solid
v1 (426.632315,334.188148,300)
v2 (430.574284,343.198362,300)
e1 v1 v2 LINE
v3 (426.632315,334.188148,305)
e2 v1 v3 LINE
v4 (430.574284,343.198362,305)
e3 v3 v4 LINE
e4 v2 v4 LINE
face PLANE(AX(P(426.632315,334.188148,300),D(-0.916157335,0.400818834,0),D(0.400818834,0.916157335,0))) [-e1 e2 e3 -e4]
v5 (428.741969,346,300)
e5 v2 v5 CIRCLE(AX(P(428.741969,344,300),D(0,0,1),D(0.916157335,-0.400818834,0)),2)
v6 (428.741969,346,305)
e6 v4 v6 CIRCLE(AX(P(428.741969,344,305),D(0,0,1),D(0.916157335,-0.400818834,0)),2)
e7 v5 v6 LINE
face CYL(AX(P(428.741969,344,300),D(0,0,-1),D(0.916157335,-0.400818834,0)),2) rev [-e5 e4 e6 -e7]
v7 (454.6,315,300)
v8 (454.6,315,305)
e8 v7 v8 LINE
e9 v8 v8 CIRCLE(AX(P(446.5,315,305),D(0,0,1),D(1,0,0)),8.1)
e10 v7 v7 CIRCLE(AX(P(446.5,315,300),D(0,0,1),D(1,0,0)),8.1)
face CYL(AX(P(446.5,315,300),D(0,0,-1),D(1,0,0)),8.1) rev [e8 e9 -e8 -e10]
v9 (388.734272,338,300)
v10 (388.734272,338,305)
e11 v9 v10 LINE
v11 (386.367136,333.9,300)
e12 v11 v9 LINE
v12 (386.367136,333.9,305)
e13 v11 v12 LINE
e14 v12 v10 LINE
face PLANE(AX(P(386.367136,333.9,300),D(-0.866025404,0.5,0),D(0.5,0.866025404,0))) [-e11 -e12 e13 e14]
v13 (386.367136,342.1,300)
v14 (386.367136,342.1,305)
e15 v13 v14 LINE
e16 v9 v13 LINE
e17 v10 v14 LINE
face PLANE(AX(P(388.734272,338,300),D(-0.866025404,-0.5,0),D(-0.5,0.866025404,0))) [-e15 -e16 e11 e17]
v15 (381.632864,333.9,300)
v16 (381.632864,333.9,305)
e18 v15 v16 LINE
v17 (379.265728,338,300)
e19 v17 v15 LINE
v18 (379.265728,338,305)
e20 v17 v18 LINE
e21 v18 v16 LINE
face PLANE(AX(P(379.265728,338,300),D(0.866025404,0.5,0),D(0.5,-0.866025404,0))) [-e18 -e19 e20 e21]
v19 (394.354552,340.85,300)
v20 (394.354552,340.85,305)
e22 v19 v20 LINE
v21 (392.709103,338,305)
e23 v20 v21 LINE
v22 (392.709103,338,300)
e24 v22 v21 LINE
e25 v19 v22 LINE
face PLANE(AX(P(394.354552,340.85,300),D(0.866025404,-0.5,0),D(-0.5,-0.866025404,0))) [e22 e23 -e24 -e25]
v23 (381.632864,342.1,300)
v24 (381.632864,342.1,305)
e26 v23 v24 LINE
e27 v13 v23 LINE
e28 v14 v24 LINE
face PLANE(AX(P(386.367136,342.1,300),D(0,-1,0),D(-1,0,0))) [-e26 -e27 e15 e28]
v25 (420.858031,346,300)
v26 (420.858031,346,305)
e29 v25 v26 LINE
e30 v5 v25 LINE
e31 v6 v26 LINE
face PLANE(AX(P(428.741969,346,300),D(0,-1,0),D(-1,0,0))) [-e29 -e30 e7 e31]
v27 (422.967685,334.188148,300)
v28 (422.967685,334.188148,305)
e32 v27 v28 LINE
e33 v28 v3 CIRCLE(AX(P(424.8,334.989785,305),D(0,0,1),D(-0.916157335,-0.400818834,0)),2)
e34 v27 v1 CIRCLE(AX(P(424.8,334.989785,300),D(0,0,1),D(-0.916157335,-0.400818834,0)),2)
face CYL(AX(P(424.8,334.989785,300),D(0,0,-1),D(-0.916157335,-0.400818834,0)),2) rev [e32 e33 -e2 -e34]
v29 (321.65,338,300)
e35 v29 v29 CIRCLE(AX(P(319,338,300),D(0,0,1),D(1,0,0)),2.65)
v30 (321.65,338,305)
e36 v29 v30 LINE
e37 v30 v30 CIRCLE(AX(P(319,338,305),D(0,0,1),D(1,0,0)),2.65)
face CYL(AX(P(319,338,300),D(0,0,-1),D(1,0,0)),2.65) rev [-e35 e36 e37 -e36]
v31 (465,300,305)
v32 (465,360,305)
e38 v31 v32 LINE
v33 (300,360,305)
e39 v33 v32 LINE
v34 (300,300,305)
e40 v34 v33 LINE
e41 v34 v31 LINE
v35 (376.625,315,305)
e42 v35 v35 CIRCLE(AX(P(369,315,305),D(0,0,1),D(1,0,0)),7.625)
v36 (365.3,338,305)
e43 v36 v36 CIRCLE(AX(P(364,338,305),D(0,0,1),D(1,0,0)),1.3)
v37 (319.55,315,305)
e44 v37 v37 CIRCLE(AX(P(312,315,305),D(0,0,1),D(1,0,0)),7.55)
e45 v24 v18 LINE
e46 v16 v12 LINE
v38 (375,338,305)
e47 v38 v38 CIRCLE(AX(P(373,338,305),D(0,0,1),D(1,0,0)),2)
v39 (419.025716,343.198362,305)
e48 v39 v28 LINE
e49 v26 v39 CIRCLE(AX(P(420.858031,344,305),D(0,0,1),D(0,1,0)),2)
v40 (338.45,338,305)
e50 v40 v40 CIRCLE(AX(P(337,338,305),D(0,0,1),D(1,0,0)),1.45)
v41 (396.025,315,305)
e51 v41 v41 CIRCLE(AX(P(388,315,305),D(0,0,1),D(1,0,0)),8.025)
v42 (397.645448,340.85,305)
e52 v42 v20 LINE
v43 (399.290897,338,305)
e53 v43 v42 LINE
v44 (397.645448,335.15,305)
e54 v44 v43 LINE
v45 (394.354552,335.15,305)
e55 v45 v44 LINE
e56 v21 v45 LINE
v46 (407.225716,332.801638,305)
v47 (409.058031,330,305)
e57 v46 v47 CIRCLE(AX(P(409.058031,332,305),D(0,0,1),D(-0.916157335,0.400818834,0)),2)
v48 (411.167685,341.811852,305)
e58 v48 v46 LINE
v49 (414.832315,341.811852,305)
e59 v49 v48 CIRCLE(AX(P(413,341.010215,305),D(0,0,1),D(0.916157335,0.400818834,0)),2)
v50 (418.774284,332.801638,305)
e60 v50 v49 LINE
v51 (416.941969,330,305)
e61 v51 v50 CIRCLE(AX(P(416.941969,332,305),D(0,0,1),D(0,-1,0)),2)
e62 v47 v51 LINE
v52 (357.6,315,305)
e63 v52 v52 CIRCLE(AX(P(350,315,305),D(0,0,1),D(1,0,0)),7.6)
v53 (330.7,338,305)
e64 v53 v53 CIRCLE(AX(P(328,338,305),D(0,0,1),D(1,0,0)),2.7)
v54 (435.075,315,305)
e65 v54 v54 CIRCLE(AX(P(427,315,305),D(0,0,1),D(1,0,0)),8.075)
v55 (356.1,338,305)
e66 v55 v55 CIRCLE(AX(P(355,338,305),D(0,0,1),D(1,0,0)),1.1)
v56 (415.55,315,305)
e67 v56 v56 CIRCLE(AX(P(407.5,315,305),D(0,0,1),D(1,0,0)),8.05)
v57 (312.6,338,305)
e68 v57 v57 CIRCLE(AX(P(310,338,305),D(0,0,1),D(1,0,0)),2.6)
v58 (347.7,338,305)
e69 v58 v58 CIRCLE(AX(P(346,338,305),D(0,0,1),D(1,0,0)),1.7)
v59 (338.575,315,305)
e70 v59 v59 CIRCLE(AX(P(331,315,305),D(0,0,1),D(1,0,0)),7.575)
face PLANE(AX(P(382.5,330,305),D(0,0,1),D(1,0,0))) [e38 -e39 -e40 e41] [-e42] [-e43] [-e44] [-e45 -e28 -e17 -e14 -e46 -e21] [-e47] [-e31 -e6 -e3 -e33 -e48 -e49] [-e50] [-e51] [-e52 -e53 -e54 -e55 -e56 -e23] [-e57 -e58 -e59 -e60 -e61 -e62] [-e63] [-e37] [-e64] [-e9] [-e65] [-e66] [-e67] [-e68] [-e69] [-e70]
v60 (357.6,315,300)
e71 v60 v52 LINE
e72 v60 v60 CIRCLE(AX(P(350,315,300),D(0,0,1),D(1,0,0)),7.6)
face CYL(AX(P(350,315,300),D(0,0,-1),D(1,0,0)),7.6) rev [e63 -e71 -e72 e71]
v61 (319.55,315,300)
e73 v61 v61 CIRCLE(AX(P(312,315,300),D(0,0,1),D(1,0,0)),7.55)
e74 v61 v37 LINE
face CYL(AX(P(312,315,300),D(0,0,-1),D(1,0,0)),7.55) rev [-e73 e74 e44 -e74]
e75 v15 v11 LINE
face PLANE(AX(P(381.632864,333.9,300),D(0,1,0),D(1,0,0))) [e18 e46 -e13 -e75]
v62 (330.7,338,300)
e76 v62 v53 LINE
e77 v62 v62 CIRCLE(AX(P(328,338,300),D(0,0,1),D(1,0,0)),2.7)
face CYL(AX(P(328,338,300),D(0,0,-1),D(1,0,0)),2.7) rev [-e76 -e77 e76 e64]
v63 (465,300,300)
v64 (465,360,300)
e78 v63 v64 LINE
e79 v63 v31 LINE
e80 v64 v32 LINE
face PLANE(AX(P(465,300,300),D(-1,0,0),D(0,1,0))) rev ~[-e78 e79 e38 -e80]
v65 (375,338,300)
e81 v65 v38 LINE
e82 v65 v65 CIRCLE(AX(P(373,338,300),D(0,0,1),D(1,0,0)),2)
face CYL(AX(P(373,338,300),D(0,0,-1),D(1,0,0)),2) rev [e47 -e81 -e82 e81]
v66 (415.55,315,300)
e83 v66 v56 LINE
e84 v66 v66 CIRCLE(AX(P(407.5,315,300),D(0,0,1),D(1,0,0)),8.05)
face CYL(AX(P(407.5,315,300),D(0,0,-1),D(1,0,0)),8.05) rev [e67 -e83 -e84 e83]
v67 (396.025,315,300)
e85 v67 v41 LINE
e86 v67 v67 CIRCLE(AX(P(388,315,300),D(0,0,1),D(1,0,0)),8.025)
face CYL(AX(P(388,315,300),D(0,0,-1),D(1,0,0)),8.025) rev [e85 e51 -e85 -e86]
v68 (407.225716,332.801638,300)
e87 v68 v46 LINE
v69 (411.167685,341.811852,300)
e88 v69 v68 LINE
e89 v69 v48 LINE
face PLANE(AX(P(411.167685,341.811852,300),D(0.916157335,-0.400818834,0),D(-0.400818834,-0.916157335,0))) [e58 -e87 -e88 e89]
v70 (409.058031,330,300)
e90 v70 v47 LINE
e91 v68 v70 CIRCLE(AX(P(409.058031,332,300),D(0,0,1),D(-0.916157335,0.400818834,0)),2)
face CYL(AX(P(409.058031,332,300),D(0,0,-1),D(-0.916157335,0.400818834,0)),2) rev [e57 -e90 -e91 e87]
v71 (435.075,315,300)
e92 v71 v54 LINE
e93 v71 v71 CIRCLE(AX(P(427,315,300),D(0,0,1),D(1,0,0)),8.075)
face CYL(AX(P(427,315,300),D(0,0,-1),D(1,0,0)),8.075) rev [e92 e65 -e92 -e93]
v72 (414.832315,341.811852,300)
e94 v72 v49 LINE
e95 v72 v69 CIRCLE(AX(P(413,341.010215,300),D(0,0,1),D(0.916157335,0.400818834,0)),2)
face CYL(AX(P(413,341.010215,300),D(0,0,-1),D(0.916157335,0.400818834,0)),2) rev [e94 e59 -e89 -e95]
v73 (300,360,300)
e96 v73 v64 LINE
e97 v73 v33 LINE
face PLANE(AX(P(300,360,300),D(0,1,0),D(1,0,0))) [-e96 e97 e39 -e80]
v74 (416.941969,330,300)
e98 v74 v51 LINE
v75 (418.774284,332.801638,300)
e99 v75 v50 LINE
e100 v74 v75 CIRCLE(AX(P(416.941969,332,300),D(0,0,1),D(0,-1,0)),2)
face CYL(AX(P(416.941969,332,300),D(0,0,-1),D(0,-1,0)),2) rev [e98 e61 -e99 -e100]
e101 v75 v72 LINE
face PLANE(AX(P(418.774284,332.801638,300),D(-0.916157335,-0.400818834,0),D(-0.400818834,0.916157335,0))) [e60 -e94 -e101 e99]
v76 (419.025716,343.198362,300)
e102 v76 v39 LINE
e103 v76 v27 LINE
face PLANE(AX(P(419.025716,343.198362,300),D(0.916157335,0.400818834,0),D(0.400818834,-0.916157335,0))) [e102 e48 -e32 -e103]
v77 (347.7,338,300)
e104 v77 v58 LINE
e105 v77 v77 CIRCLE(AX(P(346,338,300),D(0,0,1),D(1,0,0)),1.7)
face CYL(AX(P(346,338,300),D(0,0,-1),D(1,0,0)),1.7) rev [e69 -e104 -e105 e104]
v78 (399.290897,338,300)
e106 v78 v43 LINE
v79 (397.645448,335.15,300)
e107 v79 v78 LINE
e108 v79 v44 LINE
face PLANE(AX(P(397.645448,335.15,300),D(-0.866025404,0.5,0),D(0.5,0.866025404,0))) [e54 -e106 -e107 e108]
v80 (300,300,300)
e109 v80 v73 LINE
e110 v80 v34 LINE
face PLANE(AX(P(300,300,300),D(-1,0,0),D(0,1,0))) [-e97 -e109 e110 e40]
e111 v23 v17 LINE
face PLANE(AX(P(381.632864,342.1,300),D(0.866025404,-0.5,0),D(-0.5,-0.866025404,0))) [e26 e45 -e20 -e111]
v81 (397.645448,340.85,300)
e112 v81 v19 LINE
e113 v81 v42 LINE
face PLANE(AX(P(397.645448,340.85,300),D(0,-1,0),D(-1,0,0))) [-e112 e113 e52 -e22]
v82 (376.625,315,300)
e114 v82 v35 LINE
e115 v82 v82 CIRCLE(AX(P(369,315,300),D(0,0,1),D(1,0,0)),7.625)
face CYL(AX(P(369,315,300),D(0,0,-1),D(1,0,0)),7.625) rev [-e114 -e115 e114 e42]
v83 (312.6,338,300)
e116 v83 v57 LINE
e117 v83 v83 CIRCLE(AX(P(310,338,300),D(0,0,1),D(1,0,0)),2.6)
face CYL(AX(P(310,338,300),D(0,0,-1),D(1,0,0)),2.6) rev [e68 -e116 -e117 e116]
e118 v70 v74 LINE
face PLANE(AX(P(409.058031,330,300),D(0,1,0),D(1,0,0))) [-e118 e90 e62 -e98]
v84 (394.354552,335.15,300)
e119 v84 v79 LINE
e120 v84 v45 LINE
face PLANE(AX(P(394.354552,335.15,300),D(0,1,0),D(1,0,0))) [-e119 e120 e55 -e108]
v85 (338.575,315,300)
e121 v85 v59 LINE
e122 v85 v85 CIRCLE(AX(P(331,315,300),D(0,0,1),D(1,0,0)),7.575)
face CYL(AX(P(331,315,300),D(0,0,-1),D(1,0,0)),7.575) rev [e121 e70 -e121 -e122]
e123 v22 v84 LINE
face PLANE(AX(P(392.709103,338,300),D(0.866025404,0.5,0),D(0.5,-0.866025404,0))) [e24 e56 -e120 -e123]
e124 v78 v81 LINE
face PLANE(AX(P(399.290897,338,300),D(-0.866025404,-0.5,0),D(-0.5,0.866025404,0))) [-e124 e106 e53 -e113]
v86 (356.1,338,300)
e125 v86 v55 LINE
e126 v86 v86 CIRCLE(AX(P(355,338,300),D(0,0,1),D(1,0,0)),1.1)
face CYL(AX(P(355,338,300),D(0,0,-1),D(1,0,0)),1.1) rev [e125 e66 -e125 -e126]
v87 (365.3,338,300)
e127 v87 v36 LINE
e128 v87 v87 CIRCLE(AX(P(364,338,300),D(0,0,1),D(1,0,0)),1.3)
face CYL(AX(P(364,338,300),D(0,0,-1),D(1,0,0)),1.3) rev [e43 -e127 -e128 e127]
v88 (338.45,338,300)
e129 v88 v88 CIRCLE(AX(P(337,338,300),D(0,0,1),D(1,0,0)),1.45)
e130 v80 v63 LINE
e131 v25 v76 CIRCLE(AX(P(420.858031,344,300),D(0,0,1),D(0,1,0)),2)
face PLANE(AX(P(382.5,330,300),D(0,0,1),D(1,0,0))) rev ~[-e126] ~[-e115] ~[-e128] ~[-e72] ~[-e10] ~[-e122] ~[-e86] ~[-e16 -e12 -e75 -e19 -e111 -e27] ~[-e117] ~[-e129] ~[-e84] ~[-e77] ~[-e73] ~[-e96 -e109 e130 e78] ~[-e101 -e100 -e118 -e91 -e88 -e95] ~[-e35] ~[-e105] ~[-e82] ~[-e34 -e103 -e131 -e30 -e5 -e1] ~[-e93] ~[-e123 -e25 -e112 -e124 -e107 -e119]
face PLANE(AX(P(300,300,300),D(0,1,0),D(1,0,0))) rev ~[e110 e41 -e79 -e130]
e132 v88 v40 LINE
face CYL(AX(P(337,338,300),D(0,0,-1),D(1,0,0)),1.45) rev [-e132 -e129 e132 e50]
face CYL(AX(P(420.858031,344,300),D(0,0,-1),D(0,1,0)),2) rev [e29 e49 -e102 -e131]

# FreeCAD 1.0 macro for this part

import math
import FreeCAD as App
import Part
import Sketcher
Q = App.Units.Quantity


def add_polygon(sketch, points):
    """Adds a closed chain of lines whose ends are joined by coincident constraints."""
    first, n = sketch.GeometryCount, len(points)
    for a, b in zip(points, points[1:] + points[:1]):
        sketch.addGeometry(Part.LineSegment(App.Vector(*a, 0), App.Vector(*b, 0)), False)
    for i in range(n):
        sketch.addConstraint(Sketcher.Constraint("Coincident", first + i, 2, first + (i + 1) % n, 1))

doc = App.newDocument("Part")
body = doc.addObject("PartDesign::Body", "Body")

# Sketch on XY plane
sketch1 = body.newObject("Sketcher::SketchObject", "Sketch")
sketch1.AttachmentSupport = (doc.getObject("XY_Plane"), [""])
sketch1.MapMode = "FlatFace"
sketch1.AttachmentOffset = App.Placement(App.Vector(0, 0, 300), App.Rotation())
add_polygon(sketch1, [(300, 360), (300, 300), (465, 300), (465, 360)])  # lines 0-3
sketch1.addGeometry(Part.Circle(App.Vector(312, 315, 0), App.Vector(0, 0, 1), 7.5), False)  # 4
sketch1.addGeometry(Part.Circle(App.Vector(331, 315, 0), App.Vector(0, 0, 1), 7.6), False)  # 5
sketch1.addGeometry(Part.Circle(App.Vector(350, 315, 0), App.Vector(0, 0, 1), 7.6), False)  # 6
sketch1.addGeometry(Part.Circle(App.Vector(369, 315, 0), App.Vector(0, 0, 1), 7.6), False)  # 7
sketch1.addGeometry(Part.Circle(App.Vector(388, 315, 0), App.Vector(0, 0, 1), 8), False)  # 8
sketch1.addGeometry(Part.Circle(App.Vector(407.5, 315, 0), App.Vector(0, 0, 1), 8.1), False)  # 9
sketch1.addGeometry(Part.Circle(App.Vector(427, 315, 0), App.Vector(0, 0, 1), 8.1), False)  # 10
sketch1.addGeometry(Part.Circle(App.Vector(446.5, 315, 0), App.Vector(0, 0, 1), 8.1), False)  # 11
sketch1.addGeometry(Part.Circle(App.Vector(310, 338, 0), App.Vector(0, 0, 1), 2.6), False)  # 12
sketch1.addGeometry(Part.Circle(App.Vector(319, 338, 0), App.Vector(0, 0, 1), 2.6), False)  # 13
sketch1.addGeometry(Part.Circle(App.Vector(328, 338, 0), App.Vector(0, 0, 1), 2.7), False)  # 14
sketch1.addGeometry(Part.Circle(App.Vector(337, 338, 0), App.Vector(0, 0, 1), 1.4), False)  # 15
sketch1.addGeometry(Part.Circle(App.Vector(346, 338, 0), App.Vector(0, 0, 1), 1.7), False)  # 16
sketch1.addGeometry(Part.Circle(App.Vector(355, 338, 0), App.Vector(0, 0, 1), 1.1), False)  # 17
sketch1.addGeometry(Part.Circle(App.Vector(364, 338, 0), App.Vector(0, 0, 1), 1.3), False)  # 18
sketch1.addGeometry(Part.Circle(App.Vector(373, 338, 0), App.Vector(0, 0, 1), 2), False)  # 19
add_polygon(sketch1, [(386.4, 342.1), (388.7, 338), (386.4, 333.9), (381.6, 333.9), (379.3, 338), (381.6, 342.1)])  # lines 20-25
add_polygon(sketch1, [(397.6, 340.9), (399.3, 338), (397.6, 335.1), (394.4, 335.1), (392.7, 338), (394.4, 340.9)])  # lines 26-31
sketch1.addGeometry(Part.LineSegment(App.Vector(416.9, 330, 0), App.Vector(409.1, 330, 0)), False)  # 32
sketch1.addGeometry(Part.ArcOfCircle(Part.Circle(App.Vector(409.1, 332, 0), App.Vector(0, 0, 1), 2), math.radians(156), math.radians(270)), False)  # 33
sketch1.addGeometry(Part.LineSegment(App.Vector(407.2, 332.8, 0), App.Vector(411.2, 341.8, 0)), False)  # 34
sketch1.addGeometry(Part.ArcOfCircle(Part.Circle(App.Vector(413, 341, 0), App.Vector(0, 0, 1), 2), math.radians(24), math.radians(156)), False)  # 35
sketch1.addGeometry(Part.LineSegment(App.Vector(414.8, 341.8, 0), App.Vector(418.8, 332.8, 0)), False)  # 36
sketch1.addGeometry(Part.ArcOfCircle(Part.Circle(App.Vector(416.9, 332, 0), App.Vector(0, 0, 1), 2), math.radians(-90), math.radians(24)), False)  # 37
sketch1.addGeometry(Part.LineSegment(App.Vector(430.6, 343.2, 0), App.Vector(426.6, 334.2, 0)), False)  # 38
sketch1.addGeometry(Part.ArcOfCircle(Part.Circle(App.Vector(424.8, 335, 0), App.Vector(0, 0, 1), 2), math.radians(-156), math.radians(-24)), False)  # 39
sketch1.addGeometry(Part.LineSegment(App.Vector(423, 334.2, 0), App.Vector(419, 343.2, 0)), False)  # 40
sketch1.addGeometry(Part.ArcOfCircle(Part.Circle(App.Vector(420.9, 344, 0), App.Vector(0, 0, 1), 2), math.radians(90), math.radians(204)), False)  # 41
sketch1.addGeometry(Part.LineSegment(App.Vector(420.9, 346, 0), App.Vector(428.7, 346, 0)), False)  # 42
sketch1.addGeometry(Part.ArcOfCircle(Part.Circle(App.Vector(428.7, 344, 0), App.Vector(0, 0, 1), 2), math.radians(-24), math.radians(90)), False)  # 43
sketch1.addConstraint([
    Sketcher.Constraint("Tangent", 32, 2, 33, 2),
    Sketcher.Constraint("Tangent", 33, 1, 34, 1),
    Sketcher.Constraint("Tangent", 34, 2, 35, 2),
    Sketcher.Constraint("Tangent", 35, 1, 36, 1),
    Sketcher.Constraint("Tangent", 36, 2, 37, 2),
    Sketcher.Constraint("Tangent", 37, 1, 32, 1),
    Sketcher.Constraint("Tangent", 38, 2, 39, 2),
    Sketcher.Constraint("Tangent", 39, 1, 40, 1),
    Sketcher.Constraint("Tangent", 40, 2, 41, 2),
    Sketcher.Constraint("Tangent", 41, 1, 42, 1),
    Sketcher.Constraint("Tangent", 42, 2, 43, 2),
    Sketcher.Constraint("Tangent", 43, 1, 38, 1),
    Sketcher.Constraint("Vertical", 0),
    Sketcher.Constraint("Horizontal", 1),
    Sketcher.Constraint("Vertical", 2),
    Sketcher.Constraint("Horizontal", 3),
    Sketcher.Constraint("Horizontal", 22),
    Sketcher.Constraint("Horizontal", 25),
    Sketcher.Constraint("Horizontal", 28),
    Sketcher.Constraint("Horizontal", 31),
    Sketcher.Constraint("Horizontal", 32),
    Sketcher.Constraint("Horizontal", 42),
    Sketcher.Constraint("Equal", 19, 33),
    Sketcher.Constraint("Equal", 33, 35),
    Sketcher.Constraint("Equal", 35, 37),
    Sketcher.Constraint("Equal", 37, 39),
    Sketcher.Constraint("Equal", 39, 41),
    Sketcher.Constraint("Equal", 41, 43),
    Sketcher.Constraint("Parallel", 20, 23),
    Sketcher.Constraint("Parallel", 21, 24),
    Sketcher.Constraint("Parallel", 23, 26),
    Sketcher.Constraint("Parallel", 24, 27),
    Sketcher.Constraint("Parallel", 26, 29),
    Sketcher.Constraint("Parallel", 27, 30),
    Sketcher.Constraint("Parallel", 34, 38),
    Sketcher.Constraint("Parallel", 36, 40),
    Sketcher.Constraint("Horizontal", 4, 3, 5, 3),
    Sketcher.Constraint("Horizontal", 5, 3, 6, 3),
    Sketcher.Constraint("Horizontal", 6, 3, 7, 3),
    Sketcher.Constraint("Horizontal", 7, 3, 8, 3),
    Sketcher.Constraint("Horizontal", 8, 3, 9, 3),
    Sketcher.Constraint("Horizontal", 9, 3, 10, 3),
    Sketcher.Constraint("Horizontal", 10, 3, 11, 3),
    Sketcher.Constraint("Horizontal", 12, 3, 13, 3),
    Sketcher.Constraint("Horizontal", 13, 3, 14, 3),
    Sketcher.Constraint("Horizontal", 14, 3, 15, 3),
    Sketcher.Constraint("Horizontal", 15, 3, 16, 3),
    Sketcher.Constraint("Horizontal", 16, 3, 17, 3),
    Sketcher.Constraint("Horizontal", 17, 3, 18, 3),
    Sketcher.Constraint("Horizontal", 18, 3, 19, 3),
    Sketcher.Constraint("Horizontal", 19, 3, 20, 2),
    Sketcher.Constraint("Horizontal", 20, 2, 23, 2),
    Sketcher.Constraint("Horizontal", 23, 2, 26, 2),
    Sketcher.Constraint("Horizontal", 26, 2, 29, 2),
    Sketcher.Constraint("Horizontal", 34, 2, 35, 1),
    Sketcher.Constraint("Vertical", 22, 2, 24, 2),
    Sketcher.Constraint("Vertical", 21, 2, 25, 2),
    Sketcher.Constraint("Vertical", 28, 2, 30, 2),
    Sketcher.Constraint("Equal", 32, 42),
    Sketcher.Constraint("Diameter", 19, Q("4 mm")),
    Sketcher.Constraint("Diameter", 4, Q("15.1 mm")),
    Sketcher.Constraint("Diameter", 6, Q("15.2 mm")),
    Sketcher.Constraint("Diameter", 9, Q("16.1 mm")),
    Sketcher.Constraint("Diameter", 11, Q("16.2 mm")),
    Sketcher.Constraint("Diameter", 12, Q("5.2 mm")),
    Sketcher.Constraint("Diameter", 13, Q("5.3 mm")),
    Sketcher.Constraint("Diameter", 14, Q("5.4 mm")),
    Sketcher.Constraint("Diameter", 15, Q("2.9 mm")),
    Sketcher.Constraint("Diameter", 16, Q("3.4 mm")),
    Sketcher.Constraint("Diameter", 17, Q("2.2 mm")),
    Sketcher.Constraint("Diameter", 18, Q("2.6 mm")),
    Sketcher.Constraint("Diameter", 5, Q("15.15 mm")),
    Sketcher.Constraint("Diameter", 7, Q("15.25 mm")),
    Sketcher.Constraint("Diameter", 8, Q("16.05 mm")),
    Sketcher.Constraint("Diameter", 10, Q("16.15 mm")),
    Sketcher.Constraint("DistanceX", 1, 1, 1, 2, Q("165 mm")),
    Sketcher.Constraint("DistanceY", 0, 2, 0, 1, Q("60 mm")),
    Sketcher.Constraint("Angle", 20, Q("-60 deg")),
    Sketcher.Constraint("DistanceX", -1, 1, 4, 3, Q("312 mm")),
    Sketcher.Constraint("DistanceY", -1, 1, 4, 3, Q("315 mm")),
    Sketcher.Constraint("DistanceX", -1, 1, 5, 3, Q("331 mm")),
    Sketcher.Constraint("DistanceX", -1, 1, 6, 3, Q("350 mm")),
    Sketcher.Constraint("DistanceX", -1, 1, 7, 3, Q("369 mm")),
    Sketcher.Constraint("DistanceX", -1, 1, 8, 3, Q("388 mm")),
    Sketcher.Constraint("DistanceX", -1, 1, 10, 3, Q("427 mm")),
    Sketcher.Constraint("DistanceX", -1, 1, 12, 3, Q("310 mm")),
    Sketcher.Constraint("DistanceY", -1, 1, 12, 3, Q("338 mm")),
    Sketcher.Constraint("DistanceX", -1, 1, 13, 3, Q("319 mm")),
    Sketcher.Constraint("DistanceX", -1, 1, 14, 3, Q("328 mm")),
    Sketcher.Constraint("DistanceX", -1, 1, 15, 3, Q("337 mm")),
    Sketcher.Constraint("DistanceX", -1, 1, 16, 3, Q("346 mm")),
    Sketcher.Constraint("DistanceX", -1, 1, 17, 3, Q("355 mm")),
    Sketcher.Constraint("DistanceX", -1, 1, 18, 3, Q("364 mm")),
    Sketcher.Constraint("DistanceX", -1, 1, 19, 3, Q("373 mm")),
    Sketcher.Constraint("DistanceY", -1, 1, 33, 3, Q("332 mm")),
    Sketcher.Constraint("DistanceX", -1, 1, 35, 3, Q("413 mm")),
    Sketcher.Constraint("DistanceY", -1, 1, 41, 3, Q("344 mm")),
    Sketcher.Constraint("DistanceX", -1, 1, 0, 2, Q("300 mm")),
    Sketcher.Constraint("DistanceY", -1, 1, 0, 2, Q("300 mm")),
    Sketcher.Constraint("DistanceX", 9, 3, 11, 3, Q("39 mm")),
    Sketcher.Constraint("DistanceX", -1, 1, 9, 3, Q("407.5 mm")),
    Sketcher.Constraint("DistanceX", -1, 1, 39, 3, Q("424.8 mm")),
    Sketcher.Constraint("DistanceY", -1, 1, 21, 2, Q("333.9 mm")),
    Sketcher.Constraint("DistanceY", 28, 2, 30, 2, Q("5.7 mm")),
    Sketcher.Constraint("DistanceX", 36, 2, 39, 1, Q("4.193402 mm")),
    Sketcher.Constraint("Distance", 34, Q("9.834789 mm")),
    Sketcher.Constraint("DistanceX", 22, 2, 22, 1, Q("4.734272 mm")),
    Sketcher.Constraint("DistanceX", 28, 2, 28, 1, Q("3.290897 mm")),
    Sketcher.Constraint("DistanceX", -1, 1, 27, 2, Q("397.645448 mm")),
    Sketcher.Constraint("DistanceX", 20, 2, 33, 3, Q("20.323759 mm")),
])
pad1 = body.newObject("PartDesign::Pad", "Pad")
pad1.Profile = sketch1
pad1.Length = 5

doc.recompute()
